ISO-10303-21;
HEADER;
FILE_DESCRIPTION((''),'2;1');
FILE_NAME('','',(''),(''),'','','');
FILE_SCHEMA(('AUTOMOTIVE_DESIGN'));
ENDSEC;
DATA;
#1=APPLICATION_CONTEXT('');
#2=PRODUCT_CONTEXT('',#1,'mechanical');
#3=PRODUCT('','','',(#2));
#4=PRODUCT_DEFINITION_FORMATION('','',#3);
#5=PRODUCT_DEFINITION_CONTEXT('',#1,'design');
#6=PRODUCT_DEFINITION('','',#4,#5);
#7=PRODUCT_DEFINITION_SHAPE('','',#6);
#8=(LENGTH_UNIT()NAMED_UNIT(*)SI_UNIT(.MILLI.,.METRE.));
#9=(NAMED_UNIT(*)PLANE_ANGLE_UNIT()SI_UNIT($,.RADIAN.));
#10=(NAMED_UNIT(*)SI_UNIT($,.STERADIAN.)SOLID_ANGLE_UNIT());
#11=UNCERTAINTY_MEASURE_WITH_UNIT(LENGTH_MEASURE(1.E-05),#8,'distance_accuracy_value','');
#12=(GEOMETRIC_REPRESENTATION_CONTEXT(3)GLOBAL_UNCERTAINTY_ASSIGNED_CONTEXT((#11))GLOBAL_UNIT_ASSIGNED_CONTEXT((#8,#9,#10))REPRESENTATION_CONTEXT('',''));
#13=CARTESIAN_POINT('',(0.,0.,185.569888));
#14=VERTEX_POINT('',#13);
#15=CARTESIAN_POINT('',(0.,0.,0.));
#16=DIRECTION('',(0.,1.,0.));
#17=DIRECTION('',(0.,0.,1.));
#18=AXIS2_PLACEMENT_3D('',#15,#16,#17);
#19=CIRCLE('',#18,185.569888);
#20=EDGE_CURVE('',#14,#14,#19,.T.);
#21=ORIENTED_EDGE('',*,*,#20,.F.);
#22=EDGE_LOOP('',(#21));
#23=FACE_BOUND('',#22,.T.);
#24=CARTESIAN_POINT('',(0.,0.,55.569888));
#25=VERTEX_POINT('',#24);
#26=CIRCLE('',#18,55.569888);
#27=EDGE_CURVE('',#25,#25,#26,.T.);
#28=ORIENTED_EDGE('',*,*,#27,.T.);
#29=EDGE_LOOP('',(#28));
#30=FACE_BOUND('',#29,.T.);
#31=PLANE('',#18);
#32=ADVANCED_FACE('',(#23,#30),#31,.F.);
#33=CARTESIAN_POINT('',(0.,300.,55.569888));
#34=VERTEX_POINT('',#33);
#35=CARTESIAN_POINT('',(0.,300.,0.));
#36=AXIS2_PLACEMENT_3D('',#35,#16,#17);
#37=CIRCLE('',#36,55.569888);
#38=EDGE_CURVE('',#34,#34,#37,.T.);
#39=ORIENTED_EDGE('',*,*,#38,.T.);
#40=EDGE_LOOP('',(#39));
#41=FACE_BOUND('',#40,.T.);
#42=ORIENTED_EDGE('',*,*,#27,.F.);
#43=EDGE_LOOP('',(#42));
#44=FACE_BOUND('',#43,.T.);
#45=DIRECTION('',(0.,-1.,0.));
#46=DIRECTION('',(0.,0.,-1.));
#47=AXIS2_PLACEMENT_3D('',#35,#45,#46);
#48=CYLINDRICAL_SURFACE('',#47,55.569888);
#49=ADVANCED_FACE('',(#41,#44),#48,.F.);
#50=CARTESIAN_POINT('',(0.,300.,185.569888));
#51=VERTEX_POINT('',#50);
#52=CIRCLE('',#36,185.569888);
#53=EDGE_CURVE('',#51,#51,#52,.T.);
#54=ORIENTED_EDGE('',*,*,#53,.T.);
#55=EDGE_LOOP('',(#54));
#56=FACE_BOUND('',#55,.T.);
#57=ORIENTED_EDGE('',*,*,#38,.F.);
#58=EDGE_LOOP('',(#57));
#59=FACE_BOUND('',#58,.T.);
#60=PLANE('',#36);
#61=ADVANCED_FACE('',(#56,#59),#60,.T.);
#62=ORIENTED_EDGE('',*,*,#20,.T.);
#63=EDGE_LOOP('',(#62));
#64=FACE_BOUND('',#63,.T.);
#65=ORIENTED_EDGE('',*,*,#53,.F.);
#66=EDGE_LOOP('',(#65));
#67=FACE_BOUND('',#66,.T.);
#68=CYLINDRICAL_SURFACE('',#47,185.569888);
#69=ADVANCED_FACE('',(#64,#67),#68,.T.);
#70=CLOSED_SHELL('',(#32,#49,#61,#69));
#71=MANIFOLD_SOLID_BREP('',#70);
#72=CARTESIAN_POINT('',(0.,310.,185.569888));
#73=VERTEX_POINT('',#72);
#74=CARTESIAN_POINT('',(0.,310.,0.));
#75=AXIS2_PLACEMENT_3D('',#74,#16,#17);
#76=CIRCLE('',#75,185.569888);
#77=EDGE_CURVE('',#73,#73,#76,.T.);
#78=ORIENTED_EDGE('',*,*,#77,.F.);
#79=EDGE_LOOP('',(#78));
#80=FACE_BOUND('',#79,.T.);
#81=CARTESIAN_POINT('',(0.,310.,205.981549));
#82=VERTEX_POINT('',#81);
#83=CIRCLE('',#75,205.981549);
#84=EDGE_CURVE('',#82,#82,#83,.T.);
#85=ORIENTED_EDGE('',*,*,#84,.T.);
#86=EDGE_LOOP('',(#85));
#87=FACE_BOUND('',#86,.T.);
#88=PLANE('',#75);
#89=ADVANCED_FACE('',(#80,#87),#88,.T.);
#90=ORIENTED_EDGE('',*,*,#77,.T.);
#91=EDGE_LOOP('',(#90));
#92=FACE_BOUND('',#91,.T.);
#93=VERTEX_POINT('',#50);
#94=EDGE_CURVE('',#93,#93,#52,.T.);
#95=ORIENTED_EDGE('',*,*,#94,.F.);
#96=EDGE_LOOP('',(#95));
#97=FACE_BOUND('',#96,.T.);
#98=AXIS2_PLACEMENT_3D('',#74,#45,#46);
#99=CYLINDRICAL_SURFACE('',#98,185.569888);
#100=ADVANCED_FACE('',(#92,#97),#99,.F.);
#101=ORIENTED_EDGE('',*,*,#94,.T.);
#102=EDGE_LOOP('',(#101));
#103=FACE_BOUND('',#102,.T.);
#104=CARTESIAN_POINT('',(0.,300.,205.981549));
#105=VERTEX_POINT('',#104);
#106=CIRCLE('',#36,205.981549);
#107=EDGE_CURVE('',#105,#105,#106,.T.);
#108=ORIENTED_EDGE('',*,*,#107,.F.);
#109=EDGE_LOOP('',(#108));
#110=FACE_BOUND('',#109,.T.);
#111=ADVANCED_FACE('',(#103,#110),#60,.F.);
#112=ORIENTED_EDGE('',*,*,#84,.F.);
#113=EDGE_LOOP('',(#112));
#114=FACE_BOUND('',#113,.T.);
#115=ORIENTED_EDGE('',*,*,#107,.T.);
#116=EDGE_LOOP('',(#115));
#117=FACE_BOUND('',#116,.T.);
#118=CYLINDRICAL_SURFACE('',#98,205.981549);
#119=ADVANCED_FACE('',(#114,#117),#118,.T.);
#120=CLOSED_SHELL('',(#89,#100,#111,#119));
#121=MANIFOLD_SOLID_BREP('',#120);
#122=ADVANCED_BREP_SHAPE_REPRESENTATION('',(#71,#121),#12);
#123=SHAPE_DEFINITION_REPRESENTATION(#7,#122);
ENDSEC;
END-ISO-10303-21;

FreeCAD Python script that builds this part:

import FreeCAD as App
import Part
import Sketcher

doc = App.newDocument("Part")
body = doc.addObject("PartDesign::Body", "Body")

sketch1 = body.newObject("Sketcher::SketchObject", "Sketch")
sketch1.AttachmentSupport = (doc.getObject("XZ_Plane"), [""])
sketch1.MapMode = "FlatFace"
sketch1.addGeometry([
    Part.Circle(App.Vector(0, 0, 0), App.Vector(0, 0, 1), 186),
    Part.Circle(App.Vector(0, 0, 0), App.Vector(0, 0, 1), 56),
], False)
sketch1.addConstraint([
    Sketcher.Constraint("Coincident", 0, 3, -1, 1),
    Sketcher.Constraint("Coincident", 1, 3, -1, 1),
    Sketcher.Constraint("Diameter", 0, 371.139775),
    Sketcher.Constraint("Diameter", 1, 111.139775),
])
pad1 = body.newObject("PartDesign::Pad", "Pad")
pad1.Profile = sketch1
pad1.Length = 300
pad1.Reversed = True
body2 = doc.addObject("PartDesign::Body", "Body001")

sketch2 = body2.newObject("Sketcher::SketchObject", "Sketch001")
sketch2.AttachmentSupport = (doc.getObject("XZ_Plane001"), [""])
sketch2.MapMode = "FlatFace"
sketch2.AttachmentOffset = App.Placement(App.Vector(0, 0, -300), App.Rotation())
sketch2.addGeometry([
    Part.Circle(App.Vector(0, 0, 0), App.Vector(0, 0, 1), 206),
    Part.Circle(App.Vector(0, 0, 0), App.Vector(0, 0, 1), 186),
], False)
sketch2.addConstraint([
    Sketcher.Constraint("Coincident", 0, 3, -1, 1),
    Sketcher.Constraint("Coincident", 1, 3, -1, 1),
    Sketcher.Constraint("Diameter", 0, 411.963097),
    Sketcher.Constraint("Diameter", 1, 371.139775),
])
pad2 = body2.newObject("PartDesign::Pad", "Pad001")
pad2.Profile = sketch2
pad2.Length = 10
pad2.Reversed = True

doc.recompute()
